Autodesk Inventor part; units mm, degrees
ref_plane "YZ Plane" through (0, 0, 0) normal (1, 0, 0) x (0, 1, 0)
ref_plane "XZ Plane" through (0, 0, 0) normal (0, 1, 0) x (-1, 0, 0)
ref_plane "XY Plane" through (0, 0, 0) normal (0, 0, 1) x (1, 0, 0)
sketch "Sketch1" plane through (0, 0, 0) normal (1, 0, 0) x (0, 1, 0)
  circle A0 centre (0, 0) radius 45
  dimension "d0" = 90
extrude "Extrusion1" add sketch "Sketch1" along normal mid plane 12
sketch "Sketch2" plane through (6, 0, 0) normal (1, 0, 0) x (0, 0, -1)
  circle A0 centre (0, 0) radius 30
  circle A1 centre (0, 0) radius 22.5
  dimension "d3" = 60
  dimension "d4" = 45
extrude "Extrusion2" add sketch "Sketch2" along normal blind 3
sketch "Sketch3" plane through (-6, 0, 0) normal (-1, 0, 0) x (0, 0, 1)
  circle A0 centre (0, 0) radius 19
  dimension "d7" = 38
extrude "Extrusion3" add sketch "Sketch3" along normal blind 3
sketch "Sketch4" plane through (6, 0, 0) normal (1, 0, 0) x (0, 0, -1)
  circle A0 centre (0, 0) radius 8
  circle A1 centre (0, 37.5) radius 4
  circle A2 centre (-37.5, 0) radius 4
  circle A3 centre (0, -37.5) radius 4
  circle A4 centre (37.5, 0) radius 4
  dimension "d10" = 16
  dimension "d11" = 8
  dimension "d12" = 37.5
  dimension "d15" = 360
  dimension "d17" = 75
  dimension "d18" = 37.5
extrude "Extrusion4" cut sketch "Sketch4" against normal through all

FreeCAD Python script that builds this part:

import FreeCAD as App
import Part
import Sketcher

V = App.Vector

doc = App.newDocument("Part")
body = doc.addObject("PartDesign::Body", "Body")

sketch1 = body.newObject("Sketcher::SketchObject", "Sketch")
sketch1.AttachmentSupport = (doc.getObject("YZ_Plane"), [""])
sketch1.MapMode = "FlatFace"
sketch1.addGeometry(Part.Circle(V(0, 0, 0), V(0, 0, 1), 45), False)
sketch1.addConstraint([
    Sketcher.Constraint("Coincident", 0, 3, -1, 1),
    Sketcher.Constraint("Diameter", 0, 90.0),
])
pad1 = body.newObject("PartDesign::Pad", "Pad")
pad1.Profile = sketch1
pad1.Length = 12
pad1.Midplane = True

sketch2 = body.newObject("Sketcher::SketchObject", "Sketch001")
sketch2.AttachmentSupport = (doc.getObject("YZ_Plane"), [""])
sketch2.MapMode = "FlatFace"
sketch2.AttachmentOffset = App.Placement(V(0, 0, 6), App.Rotation())
sketch2.addGeometry([
    Part.Circle(V(0, 0, 0), V(0, 0, 1), 30),
    Part.Circle(V(0, 0, 0), V(0, 0, 1), 22),
], False)
sketch2.addConstraint([
    Sketcher.Constraint("Coincident", 0, 3, -1, 1),
    Sketcher.Constraint("Coincident", 1, 3, -1, 1),
    Sketcher.Constraint("Diameter", 0, 60.0),
    Sketcher.Constraint("Diameter", 1, 45.0),
])
pad2 = body.newObject("PartDesign::Pad", "Pad001")
pad2.Profile = sketch2
pad2.Length = 3

sketch3 = body.newObject("Sketcher::SketchObject", "Sketch002")
sketch3.AttachmentSupport = (doc.getObject("YZ_Plane"), [""])
sketch3.MapMode = "FlatFace"
sketch3.AttachmentOffset = App.Placement(V(0, 0, -6), App.Rotation())
sketch3.addGeometry(Part.Circle(V(0, 0, 0), V(0, 0, 1), 19), False)
sketch3.addConstraint([
    Sketcher.Constraint("Coincident", 0, 3, -1, 1),
    Sketcher.Constraint("Diameter", 0, 38.0),
])
pad3 = body.newObject("PartDesign::Pad", "Pad002")
pad3.Profile = sketch3
pad3.Length = 3
pad3.Reversed = True

sketch4 = body.newObject("Sketcher::SketchObject", "Sketch003")
sketch4.AttachmentSupport = (doc.getObject("YZ_Plane"), [""])
sketch4.MapMode = "FlatFace"
sketch4.AttachmentOffset = App.Placement(V(0, 0, 6), App.Rotation())
sketch4.addGeometry([
    Part.Circle(V(0, 0, 0), V(0, 0, 1), 8),
    Part.Circle(V(37.5, 0, 0), V(0, 0, 1), 4),
    Part.Circle(V(0, 37.5, 0), V(0, 0, 1), 4),
    Part.Circle(V(-37.5, 0, 0), V(0, 0, 1), 4),
    Part.Circle(V(0, -37.5, 0), V(0, 0, 1), 4),
], False)
sketch4.addConstraint([
    Sketcher.Constraint("Coincident", 0, 3, -1, 1),
    Sketcher.Constraint("Equal", 1, 2),
    Sketcher.Constraint("Equal", 2, 3),
    Sketcher.Constraint("Equal", 3, 4),
    Sketcher.Constraint("Symmetric", 1, 3, 3, 3, -1, 1),
    Sketcher.Constraint("Symmetric", 2, 3, 4, 3, -1, 1),
    Sketcher.Constraint("PointOnObject", 1, 3, -1),
    Sketcher.Constraint("PointOnObject", 2, 3, -2),
    Sketcher.Constraint("Diameter", 0, 16.0),
    Sketcher.Constraint("Diameter", 1, 8.0),
    Sketcher.Constraint("DistanceX", 3, 3, 1, 3, 75.0),
    Sketcher.Constraint("DistanceY", 4, 3, 2, 3, 75.0),
])
pocket1 = body.newObject("PartDesign::Pocket", "Pocket")
pocket1.Profile = sketch4
pocket1.Type = "ThroughAll"

doc.recompute()
